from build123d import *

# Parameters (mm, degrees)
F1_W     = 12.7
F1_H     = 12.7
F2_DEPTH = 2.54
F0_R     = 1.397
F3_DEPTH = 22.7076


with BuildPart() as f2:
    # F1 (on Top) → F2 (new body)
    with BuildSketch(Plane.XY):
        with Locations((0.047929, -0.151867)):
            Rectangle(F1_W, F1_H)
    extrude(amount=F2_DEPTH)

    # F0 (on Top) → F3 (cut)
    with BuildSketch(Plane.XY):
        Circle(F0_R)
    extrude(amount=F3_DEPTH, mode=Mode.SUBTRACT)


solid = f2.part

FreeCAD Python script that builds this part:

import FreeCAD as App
import Part
import Sketcher
from FreeCAD import Vector
Q = App.Units.Quantity

doc = App.newDocument("Part")
body = doc.addObject("PartDesign::Body", "Body")

# Sketch on XY plane
sketch1 = body.newObject("Sketcher::SketchObject", "Sketch")
sketch1.AttachmentSupport = (doc.getObject("XY_Plane"), [""])
sketch1.MapMode = "FlatFace"
sketch1.addGeometry(Part.LineSegment(Vector(-6, 6, 0), Vector(-6, -7, 0)), False)
sketch1.addGeometry(Part.LineSegment(Vector(-6, -7, 0), Vector(6, -7, 0)), False)
sketch1.addGeometry(Part.LineSegment(Vector(6, -7, 0), Vector(6, 6, 0)), False)
sketch1.addGeometry(Part.LineSegment(Vector(6, 6, 0), Vector(-6, 6, 0)), False)
sketch1.addConstraint(Sketcher.Constraint("Coincident", 0, 2, 1, 1))
sketch1.addConstraint(Sketcher.Constraint("Coincident", 1, 2, 2, 1))
sketch1.addConstraint(Sketcher.Constraint("Coincident", 2, 2, 3, 1))
sketch1.addConstraint(Sketcher.Constraint("Coincident", 3, 2, 0, 1))
sketch1.addConstraint(Sketcher.Constraint("Vertical", 0))
sketch1.addConstraint(Sketcher.Constraint("Horizontal", 1))
sketch1.addConstraint(Sketcher.Constraint("Vertical", 2))
sketch1.addConstraint(Sketcher.Constraint("Horizontal", 3))
sketch1.addConstraint(Sketcher.Constraint("Equal", 3, 0))
sketch1.addConstraint(Sketcher.Constraint("DistanceX", 1, 1, 1, 2, Q("0.5 in")))
sketch1.addConstraint(Sketcher.Constraint("DistanceX", 0, 2, -1, 1, Q("6.302071 mm")))
sketch1.addConstraint(Sketcher.Constraint("DistanceY", 0, 2, -1, 1, Q("6.501867 mm")))
pad1 = body.newObject("PartDesign::Pad", "Pad")
pad1.Profile = sketch1
pad1.Length = Q("0.1 in")

# Sketch on XY plane
sketch2 = body.newObject("Sketcher::SketchObject", "Sketch001")
sketch2.AttachmentSupport = (doc.getObject("XY_Plane"), [""])
sketch2.MapMode = "FlatFace"
sketch2.addGeometry(Part.Circle(Vector(0, 0, 0), Vector(0, 0, 1), 1.4), False)
sketch2.addConstraint(Sketcher.Constraint("Coincident", 0, 3, -1, 1))
sketch2.addConstraint(Sketcher.Constraint("Diameter", 0, Q("0.11 in")))
pocket1 = body.newObject("PartDesign::Pocket", "Pocket")
pocket1.Profile = sketch2
pocket1.Length = Q("0.894 in")
pocket1.Reversed = True

doc.recompute()
